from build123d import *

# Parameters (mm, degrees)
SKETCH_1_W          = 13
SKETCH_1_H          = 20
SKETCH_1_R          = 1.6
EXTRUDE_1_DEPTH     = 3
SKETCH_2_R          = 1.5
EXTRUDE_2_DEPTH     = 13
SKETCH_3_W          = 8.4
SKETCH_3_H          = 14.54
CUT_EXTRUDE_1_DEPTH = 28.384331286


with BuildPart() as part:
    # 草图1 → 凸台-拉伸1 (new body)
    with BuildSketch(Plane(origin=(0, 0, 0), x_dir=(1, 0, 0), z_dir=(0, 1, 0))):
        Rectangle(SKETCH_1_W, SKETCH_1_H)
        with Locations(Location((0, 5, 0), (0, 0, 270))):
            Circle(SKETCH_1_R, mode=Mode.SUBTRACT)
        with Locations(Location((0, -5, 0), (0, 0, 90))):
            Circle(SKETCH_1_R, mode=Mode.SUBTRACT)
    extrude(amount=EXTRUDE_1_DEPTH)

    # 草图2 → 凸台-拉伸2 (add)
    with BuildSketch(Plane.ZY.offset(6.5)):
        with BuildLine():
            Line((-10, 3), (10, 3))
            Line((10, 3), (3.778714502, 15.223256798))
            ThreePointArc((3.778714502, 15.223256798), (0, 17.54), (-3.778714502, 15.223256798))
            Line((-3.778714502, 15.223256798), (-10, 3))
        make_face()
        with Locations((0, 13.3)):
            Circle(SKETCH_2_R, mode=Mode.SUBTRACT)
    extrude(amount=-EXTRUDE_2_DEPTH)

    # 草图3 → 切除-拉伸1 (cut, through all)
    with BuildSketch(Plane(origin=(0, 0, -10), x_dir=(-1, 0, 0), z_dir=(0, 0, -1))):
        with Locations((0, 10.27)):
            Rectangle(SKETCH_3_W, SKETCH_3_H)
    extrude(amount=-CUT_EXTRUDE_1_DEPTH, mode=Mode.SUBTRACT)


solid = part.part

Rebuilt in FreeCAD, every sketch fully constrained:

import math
import FreeCAD as App
import Part
import Sketcher
from FreeCAD import Vector

doc = App.newDocument("Part")
params = doc.addObject("Spreadsheet::Sheet", "Params")
for row, (alias, value) in enumerate([
    ("sketch1_diameter", "3.2 mm"),
    ("sketch1_width", "13 mm"),
    ("sketch1_height", "20 mm"),
    ("pad1_length", "3 mm"),
    ("sketch2_diameter", "3 mm"),
    ("sketch2_height", "20 mm"),
    ("sketch2_radius", "4.24 mm"),
    ("pad2_length", "13 mm"),
    ("sketch3_width", "8.4 mm"),
    ("sketch3_height", "14.54 mm"),
], start=1):
    params.set(f"A{row}", alias)
    params.set(f"B{row}", "=" + value)
    params.setAlias(f"B{row}", alias)

body = doc.addObject("PartDesign::Body", "Body")

sketch1 = body.newObject("Sketcher::SketchObject", "Sketch")
sketch1.AttachmentSupport = (doc.getObject("XZ_Plane"), [""])
sketch1.MapMode = "FlatFace"
sketch1.addGeometry([
    Part.LineSegment(Vector(-6.5, -10, 0), Vector(-6.5, 10, 0)),
    Part.LineSegment(Vector(-6.5, 10, 0), Vector(6.5, 10, 0)),
    Part.LineSegment(Vector(6.5, 10, 0), Vector(6.5, -10, 0)),
    Part.LineSegment(Vector(6.5, -10, 0), Vector(-6.5, -10, 0)),
    Part.Circle(Vector(0, 5, 0), Vector(0, 0, 1), 1.6),
    Part.Circle(Vector(0, -5, 0), Vector(0, 0, 1), 1.6),
], False)
sketch1.addConstraint([
    Sketcher.Constraint("Coincident", 0, 2, 1, 1),
    Sketcher.Constraint("Coincident", 1, 2, 2, 1),
    Sketcher.Constraint("Coincident", 2, 2, 3, 1),
    Sketcher.Constraint("Coincident", 3, 2, 0, 1),
    Sketcher.Constraint("Vertical", 0),
    Sketcher.Constraint("Horizontal", 1),
    Sketcher.Constraint("Vertical", 2),
    Sketcher.Constraint("Horizontal", 3),
    Sketcher.Constraint("Equal", 4, 5),
    Sketcher.Constraint("Symmetric", 4, 3, 5, 3, -1, 1),
    Sketcher.Constraint("Symmetric", 0, 2, 2, 2, -1, 1),
    Sketcher.Constraint("PointOnObject", 4, 3, -2),
    Sketcher.Constraint("Diameter", 4, 3.2),
    Sketcher.Constraint("DistanceX", 1, 1, 1, 2, 13.0),
    Sketcher.Constraint("DistanceY", 0, 1, 0, 2, 20.0),
    Sketcher.Constraint("DistanceY", -1, 1, 4, 3, 5.0),
])
sketch1.setExpression("Constraints[12]", "Params.sketch1_diameter")
sketch1.setExpression("Constraints[13]", "Params.sketch1_width")
sketch1.setExpression("Constraints[14]", "Params.sketch1_height")
pad1 = body.newObject("PartDesign::Pad", "Pad")
pad1.Profile = sketch1
pad1.setExpression("Length", "Params.pad1_length")
pad1.Reversed = True

sketch2 = body.newObject("Sketcher::SketchObject", "Sketch001")
sketch2.AttachmentSupport = (doc.getObject("YZ_Plane"), [""])
sketch2.MapMode = "FlatFace"
sketch2.AttachmentOffset = App.Placement(Vector(0, 0, -6.5), App.Rotation())
sketch2.addGeometry([
    Part.LineSegment(Vector(3, -10, 0), Vector(3, 10, 0)),
    Part.LineSegment(Vector(3, 10, 0), Vector(15.2, 3.8, 0)),
    Part.ArcOfCircle(Part.Circle(Vector(13.3, 0, 0), Vector(0, 0, 1), 4.2), math.radians(-63), math.radians(63)),
    Part.LineSegment(Vector(15.2, -3.8, 0), Vector(3, -10, 0)),
    Part.Circle(Vector(13.3, 0, 0), Vector(0, 0, 1), 1.5),
], False)
sketch2.addConstraint([
    Sketcher.Constraint("Coincident", 0, 2, 1, 1),
    Sketcher.Constraint("Tangent", 1, 2, 2, 2),
    Sketcher.Constraint("Tangent", 2, 1, 3, 1),
    Sketcher.Constraint("Coincident", 3, 2, 0, 1),
    Sketcher.Constraint("Vertical", 0),
    Sketcher.Constraint("Coincident", 4, 3, 2, 3),
    Sketcher.Constraint("Symmetric", 1, 2, 2, 1, -1),
    Sketcher.Constraint("Diameter", 4, 3.0),
    Sketcher.Constraint("DistanceY", 0, 1, 0, 2, 20.0),
    Sketcher.Constraint("Radius", 2, 4.24),
    Sketcher.Constraint("DistanceX", -1, 1, 0, 2, 3.0),
    Sketcher.Constraint("DistanceX", -1, 1, 2, 3, 13.3),
])
sketch2.setExpression("Constraints[7]", "Params.sketch2_diameter")
sketch2.setExpression("Constraints[8]", "Params.sketch2_height")
sketch2.setExpression("Constraints[9]", "Params.sketch2_radius")
pad2 = body.newObject("PartDesign::Pad", "Pad001")
pad2.Profile = sketch2
pad2.setExpression("Length", "Params.pad2_length")

sketch3 = body.newObject("Sketcher::SketchObject", "Sketch002")
sketch3.AttachmentSupport = (doc.getObject("XY_Plane"), [""])
sketch3.MapMode = "FlatFace"
sketch3.AttachmentOffset = App.Placement(Vector(0, 0, -10), App.Rotation())
sketch3.addGeometry([
    Part.LineSegment(Vector(4, 18, 0), Vector(4, 3, 0)),
    Part.LineSegment(Vector(4, 3, 0), Vector(-4, 3, 0)),
    Part.LineSegment(Vector(-4, 3, 0), Vector(-4, 18, 0)),
    Part.LineSegment(Vector(-4, 18, 0), Vector(4, 18, 0)),
], False)
sketch3.addConstraint([
    Sketcher.Constraint("Coincident", 0, 2, 1, 1),
    Sketcher.Constraint("Coincident", 1, 2, 2, 1),
    Sketcher.Constraint("Coincident", 2, 2, 3, 1),
    Sketcher.Constraint("Coincident", 3, 2, 0, 1),
    Sketcher.Constraint("Vertical", 0),
    Sketcher.Constraint("Horizontal", 1),
    Sketcher.Constraint("Vertical", 2),
    Sketcher.Constraint("Horizontal", 3),
    Sketcher.Constraint("DistanceX", 1, 2, 1, 1, 8.4),
    Sketcher.Constraint("DistanceY", -1, 1, 0, 2, 3.0),
    Sketcher.Constraint("DistanceY", 0, 2, 0, 1, 14.54),
    Sketcher.Constraint("DistanceX", -1, 1, 0, 2, 4.2),
])
sketch3.setExpression("Constraints[8]", "Params.sketch3_width")
sketch3.setExpression("Constraints[10]", "Params.sketch3_height")
pocket1 = body.newObject("PartDesign::Pocket", "Pocket")
pocket1.Profile = sketch3
pocket1.Type = "ThroughAll"
pocket1.Reversed = True

doc.recompute()
